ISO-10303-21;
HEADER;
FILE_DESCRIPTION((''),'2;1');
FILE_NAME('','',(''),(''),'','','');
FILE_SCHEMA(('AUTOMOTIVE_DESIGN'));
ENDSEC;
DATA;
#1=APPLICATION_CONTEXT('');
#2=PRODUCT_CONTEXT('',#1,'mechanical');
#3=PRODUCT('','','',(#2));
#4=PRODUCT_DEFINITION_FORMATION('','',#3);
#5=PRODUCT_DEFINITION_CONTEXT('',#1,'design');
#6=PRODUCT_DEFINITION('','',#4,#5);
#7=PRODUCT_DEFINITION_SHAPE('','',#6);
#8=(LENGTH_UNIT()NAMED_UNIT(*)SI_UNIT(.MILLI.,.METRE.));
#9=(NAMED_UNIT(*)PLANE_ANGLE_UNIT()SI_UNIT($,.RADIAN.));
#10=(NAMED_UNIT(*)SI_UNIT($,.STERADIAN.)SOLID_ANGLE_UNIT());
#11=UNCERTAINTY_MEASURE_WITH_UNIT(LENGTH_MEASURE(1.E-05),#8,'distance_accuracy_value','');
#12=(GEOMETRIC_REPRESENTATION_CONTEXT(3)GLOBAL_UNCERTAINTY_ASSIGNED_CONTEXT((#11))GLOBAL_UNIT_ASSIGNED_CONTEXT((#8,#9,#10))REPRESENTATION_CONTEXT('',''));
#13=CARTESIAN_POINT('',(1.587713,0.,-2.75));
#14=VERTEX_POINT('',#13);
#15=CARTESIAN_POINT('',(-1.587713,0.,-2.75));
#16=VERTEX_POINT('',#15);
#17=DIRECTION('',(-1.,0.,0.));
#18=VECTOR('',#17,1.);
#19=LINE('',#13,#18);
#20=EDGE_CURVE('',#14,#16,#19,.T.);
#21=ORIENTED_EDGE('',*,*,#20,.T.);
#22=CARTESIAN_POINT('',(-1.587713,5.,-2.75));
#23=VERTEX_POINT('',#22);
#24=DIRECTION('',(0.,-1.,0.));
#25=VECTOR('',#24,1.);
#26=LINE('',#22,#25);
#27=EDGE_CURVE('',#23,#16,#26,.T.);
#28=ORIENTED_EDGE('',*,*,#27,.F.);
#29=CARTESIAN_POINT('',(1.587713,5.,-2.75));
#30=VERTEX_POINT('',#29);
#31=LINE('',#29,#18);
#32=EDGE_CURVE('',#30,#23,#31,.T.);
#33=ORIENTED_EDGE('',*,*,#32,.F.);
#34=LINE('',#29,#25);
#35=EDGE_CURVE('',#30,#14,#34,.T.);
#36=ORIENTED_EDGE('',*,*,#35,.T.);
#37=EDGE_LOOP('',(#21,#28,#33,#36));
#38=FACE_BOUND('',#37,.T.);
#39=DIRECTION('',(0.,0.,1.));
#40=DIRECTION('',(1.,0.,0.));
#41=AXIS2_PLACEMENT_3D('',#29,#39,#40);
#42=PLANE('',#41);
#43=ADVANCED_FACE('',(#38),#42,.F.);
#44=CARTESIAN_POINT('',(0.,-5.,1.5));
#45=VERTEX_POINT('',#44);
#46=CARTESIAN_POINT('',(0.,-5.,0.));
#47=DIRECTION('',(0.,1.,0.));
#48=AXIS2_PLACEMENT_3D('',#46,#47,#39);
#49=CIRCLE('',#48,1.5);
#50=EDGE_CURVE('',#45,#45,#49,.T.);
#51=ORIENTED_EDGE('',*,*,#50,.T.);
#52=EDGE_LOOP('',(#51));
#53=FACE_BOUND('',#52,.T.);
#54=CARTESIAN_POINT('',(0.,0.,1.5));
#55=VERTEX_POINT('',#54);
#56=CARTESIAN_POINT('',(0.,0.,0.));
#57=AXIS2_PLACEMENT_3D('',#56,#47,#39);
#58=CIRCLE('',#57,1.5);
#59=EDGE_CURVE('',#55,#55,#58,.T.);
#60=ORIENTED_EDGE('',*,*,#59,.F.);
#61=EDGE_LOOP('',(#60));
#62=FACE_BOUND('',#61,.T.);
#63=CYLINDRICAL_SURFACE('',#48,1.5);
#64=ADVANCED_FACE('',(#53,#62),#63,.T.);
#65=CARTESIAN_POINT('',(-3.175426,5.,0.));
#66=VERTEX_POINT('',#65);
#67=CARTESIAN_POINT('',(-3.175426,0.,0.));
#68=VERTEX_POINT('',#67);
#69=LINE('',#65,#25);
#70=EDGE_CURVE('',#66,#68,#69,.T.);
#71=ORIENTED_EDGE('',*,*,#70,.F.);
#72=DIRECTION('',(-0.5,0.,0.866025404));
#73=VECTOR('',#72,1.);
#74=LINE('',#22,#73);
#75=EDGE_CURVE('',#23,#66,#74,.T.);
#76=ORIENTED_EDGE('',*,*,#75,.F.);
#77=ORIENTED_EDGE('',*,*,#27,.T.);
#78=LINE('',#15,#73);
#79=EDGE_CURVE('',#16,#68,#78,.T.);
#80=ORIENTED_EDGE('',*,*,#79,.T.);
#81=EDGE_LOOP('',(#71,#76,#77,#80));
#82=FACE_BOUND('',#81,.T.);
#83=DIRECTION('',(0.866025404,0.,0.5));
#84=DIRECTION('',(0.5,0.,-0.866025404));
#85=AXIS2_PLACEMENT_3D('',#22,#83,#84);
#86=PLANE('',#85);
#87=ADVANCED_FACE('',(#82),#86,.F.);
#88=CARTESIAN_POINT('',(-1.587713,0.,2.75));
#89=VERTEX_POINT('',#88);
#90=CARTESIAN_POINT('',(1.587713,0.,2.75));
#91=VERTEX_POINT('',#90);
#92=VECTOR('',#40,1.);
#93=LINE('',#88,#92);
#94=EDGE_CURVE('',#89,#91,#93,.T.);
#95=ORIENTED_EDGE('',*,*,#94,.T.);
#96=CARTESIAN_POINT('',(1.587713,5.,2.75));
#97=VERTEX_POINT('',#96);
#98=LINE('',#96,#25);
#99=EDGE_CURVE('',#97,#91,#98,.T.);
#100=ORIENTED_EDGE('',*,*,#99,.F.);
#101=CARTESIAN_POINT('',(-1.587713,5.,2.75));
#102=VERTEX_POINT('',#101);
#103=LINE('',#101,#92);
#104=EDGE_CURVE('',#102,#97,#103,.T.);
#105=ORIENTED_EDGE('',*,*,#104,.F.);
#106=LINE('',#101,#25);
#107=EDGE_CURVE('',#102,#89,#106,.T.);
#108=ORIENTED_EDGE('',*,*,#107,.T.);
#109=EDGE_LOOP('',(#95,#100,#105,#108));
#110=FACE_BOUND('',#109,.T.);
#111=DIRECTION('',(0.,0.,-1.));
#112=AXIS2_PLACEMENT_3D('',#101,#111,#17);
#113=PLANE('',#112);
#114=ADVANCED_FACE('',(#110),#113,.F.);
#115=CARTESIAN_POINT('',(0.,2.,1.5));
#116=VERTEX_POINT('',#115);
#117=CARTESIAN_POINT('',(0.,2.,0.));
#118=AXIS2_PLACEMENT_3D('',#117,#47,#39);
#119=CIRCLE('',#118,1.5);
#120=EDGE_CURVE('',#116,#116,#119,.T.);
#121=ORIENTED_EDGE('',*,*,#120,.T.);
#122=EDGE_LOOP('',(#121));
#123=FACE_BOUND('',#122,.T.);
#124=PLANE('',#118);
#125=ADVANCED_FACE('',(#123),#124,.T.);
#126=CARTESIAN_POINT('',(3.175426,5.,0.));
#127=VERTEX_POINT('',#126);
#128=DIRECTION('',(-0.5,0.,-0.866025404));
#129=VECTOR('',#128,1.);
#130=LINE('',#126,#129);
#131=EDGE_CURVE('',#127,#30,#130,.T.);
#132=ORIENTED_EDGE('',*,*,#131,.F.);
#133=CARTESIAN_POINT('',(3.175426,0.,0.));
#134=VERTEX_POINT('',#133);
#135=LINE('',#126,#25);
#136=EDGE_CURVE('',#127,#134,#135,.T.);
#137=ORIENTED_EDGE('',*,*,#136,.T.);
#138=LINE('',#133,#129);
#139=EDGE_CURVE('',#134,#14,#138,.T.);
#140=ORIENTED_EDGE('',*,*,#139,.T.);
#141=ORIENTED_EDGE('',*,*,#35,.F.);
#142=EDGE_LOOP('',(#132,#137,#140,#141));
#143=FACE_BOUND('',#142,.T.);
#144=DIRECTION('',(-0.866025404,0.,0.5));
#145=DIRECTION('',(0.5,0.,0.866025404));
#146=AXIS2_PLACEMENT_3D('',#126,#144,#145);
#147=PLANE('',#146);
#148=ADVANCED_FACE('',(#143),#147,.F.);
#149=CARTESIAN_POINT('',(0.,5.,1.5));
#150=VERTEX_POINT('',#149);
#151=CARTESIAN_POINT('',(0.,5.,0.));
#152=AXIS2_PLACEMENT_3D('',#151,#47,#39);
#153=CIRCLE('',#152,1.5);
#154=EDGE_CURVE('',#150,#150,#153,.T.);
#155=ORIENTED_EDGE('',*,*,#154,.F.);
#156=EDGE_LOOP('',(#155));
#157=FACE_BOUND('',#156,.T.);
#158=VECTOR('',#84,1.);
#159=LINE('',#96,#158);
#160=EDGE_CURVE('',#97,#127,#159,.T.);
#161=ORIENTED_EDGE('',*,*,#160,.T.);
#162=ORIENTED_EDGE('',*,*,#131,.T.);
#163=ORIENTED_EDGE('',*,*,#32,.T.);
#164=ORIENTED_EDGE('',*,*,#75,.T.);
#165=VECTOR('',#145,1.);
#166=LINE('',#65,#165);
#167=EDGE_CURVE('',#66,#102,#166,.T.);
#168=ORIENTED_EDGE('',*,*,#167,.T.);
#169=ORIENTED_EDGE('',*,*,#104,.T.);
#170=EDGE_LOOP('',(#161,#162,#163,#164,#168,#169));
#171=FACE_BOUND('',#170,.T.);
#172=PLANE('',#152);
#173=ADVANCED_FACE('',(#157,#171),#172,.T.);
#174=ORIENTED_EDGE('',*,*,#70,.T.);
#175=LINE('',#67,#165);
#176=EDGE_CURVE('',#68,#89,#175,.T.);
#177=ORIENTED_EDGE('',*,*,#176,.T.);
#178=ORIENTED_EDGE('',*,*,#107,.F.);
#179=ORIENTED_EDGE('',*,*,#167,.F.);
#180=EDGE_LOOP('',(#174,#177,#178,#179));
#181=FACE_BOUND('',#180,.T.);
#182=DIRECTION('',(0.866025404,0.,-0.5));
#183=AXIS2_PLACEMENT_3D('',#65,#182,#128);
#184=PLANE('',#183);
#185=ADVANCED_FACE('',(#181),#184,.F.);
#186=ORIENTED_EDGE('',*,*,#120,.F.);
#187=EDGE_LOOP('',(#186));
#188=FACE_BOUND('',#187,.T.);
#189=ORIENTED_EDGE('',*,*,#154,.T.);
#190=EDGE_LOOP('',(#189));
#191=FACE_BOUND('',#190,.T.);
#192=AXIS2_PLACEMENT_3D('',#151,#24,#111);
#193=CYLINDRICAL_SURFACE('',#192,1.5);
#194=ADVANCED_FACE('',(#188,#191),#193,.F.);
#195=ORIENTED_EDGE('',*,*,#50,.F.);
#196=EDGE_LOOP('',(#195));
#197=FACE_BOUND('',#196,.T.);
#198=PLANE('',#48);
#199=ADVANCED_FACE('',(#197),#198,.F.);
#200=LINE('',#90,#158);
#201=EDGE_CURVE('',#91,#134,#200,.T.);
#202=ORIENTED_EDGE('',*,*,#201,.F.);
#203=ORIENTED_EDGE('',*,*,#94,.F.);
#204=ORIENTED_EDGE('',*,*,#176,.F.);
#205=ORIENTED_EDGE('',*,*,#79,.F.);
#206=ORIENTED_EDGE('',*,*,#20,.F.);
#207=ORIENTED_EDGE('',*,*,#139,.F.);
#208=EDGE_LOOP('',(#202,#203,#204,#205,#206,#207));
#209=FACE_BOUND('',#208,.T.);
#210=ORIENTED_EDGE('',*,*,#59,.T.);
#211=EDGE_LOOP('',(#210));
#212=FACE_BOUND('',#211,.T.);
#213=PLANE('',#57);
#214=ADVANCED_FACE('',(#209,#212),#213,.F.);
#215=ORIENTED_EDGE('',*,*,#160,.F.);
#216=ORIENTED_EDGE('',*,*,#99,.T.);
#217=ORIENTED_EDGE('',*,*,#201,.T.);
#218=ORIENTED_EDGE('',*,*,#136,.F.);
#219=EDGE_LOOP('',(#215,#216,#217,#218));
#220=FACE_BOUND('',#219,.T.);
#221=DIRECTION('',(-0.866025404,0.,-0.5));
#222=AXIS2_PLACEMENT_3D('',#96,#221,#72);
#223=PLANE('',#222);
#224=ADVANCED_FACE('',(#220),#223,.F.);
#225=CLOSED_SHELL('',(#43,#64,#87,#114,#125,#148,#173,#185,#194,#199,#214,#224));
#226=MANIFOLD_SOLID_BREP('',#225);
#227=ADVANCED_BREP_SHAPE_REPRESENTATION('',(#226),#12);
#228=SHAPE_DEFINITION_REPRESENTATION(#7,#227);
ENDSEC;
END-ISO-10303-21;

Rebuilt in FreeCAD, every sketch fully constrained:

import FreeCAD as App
import Part
import Sketcher
Q = App.Units.Quantity


def add_polygon(sketch, points):
    """Adds a closed chain of lines whose ends are joined by coincident constraints."""
    first, n = sketch.GeometryCount, len(points)
    for a, b in zip(points, points[1:] + points[:1]):
        sketch.addGeometry(Part.LineSegment(App.Vector(*a, 0), App.Vector(*b, 0)), False)
    for i in range(n):
        sketch.addConstraint(Sketcher.Constraint("Coincident", first + i, 2, first + (i + 1) % n, 1))

doc = App.newDocument("Part")
body = doc.addObject("PartDesign::Body", "Body")

sketch1 = body.newObject("Sketcher::SketchObject", "Sketch")
sketch1.AttachmentSupport = (doc.getObject("XZ_Plane"), [""])
sketch1.MapMode = "FlatFace"
add_polygon(sketch1, [(1.587713, 2.75), (3.175426, 0), (1.587713, -2.75), (-1.587713, -2.75), (-3.175426, 0), (-1.587713, 2.75)])
sketch1.addGeometry(Part.Circle(App.Vector(0, 0, 0), App.Vector(0, 0, 1), 1.5), False)
sketch1.addConstraint([
    Sketcher.Constraint("Horizontal", 2),
    Sketcher.Constraint("Horizontal", 5),
    Sketcher.Constraint("Coincident", 6, 3, -1, 1),
    Sketcher.Constraint("Symmetric", 0, 2, 3, 2, -1, 1),
    Sketcher.Constraint("Symmetric", 1, 2, 4, 2, -1, 1),
    Sketcher.Constraint("PointOnObject", 0, 2, -1),
    Sketcher.Constraint("Parallel", 0, 3),
    Sketcher.Constraint("Vertical", 2, 2, 4, 2),
    Sketcher.Constraint("Diameter", 6, Q("3 mm")),
    Sketcher.Constraint("Angle", 0, Q("-60 deg")),
    Sketcher.Constraint("DistanceY", 2, 2, 4, 2, Q("5.5 mm")),
    Sketcher.Constraint("DistanceX", 2, 2, 2, 1, Q("3.175426 mm")),
])
pad1 = body.newObject("PartDesign::Pad", "Pad")
pad1.Profile = sketch1
pad1.Length = 5
pad1.Reversed = True

sketch2 = body.newObject("Sketcher::SketchObject", "Sketch001")
sketch2.AttachmentSupport = (doc.getObject("XZ_Plane"), [""])
sketch2.MapMode = "FlatFace"
sketch2.AttachmentOffset = App.Placement(App.Vector(0, 0, 5), App.Rotation())
sketch2.addGeometry(Part.Circle(App.Vector(0, 0, 0), App.Vector(0, 0, 1), 1.5), False)
sketch2.addConstraint([
    Sketcher.Constraint("Coincident", 0, 3, -1, 1),
    Sketcher.Constraint("Diameter", 0, Q("3 mm")),
])
pad2 = body.newObject("PartDesign::Pad", "Pad001")
pad2.Profile = sketch2
pad2.Length = 7
pad2.Reversed = True

doc.recompute()
